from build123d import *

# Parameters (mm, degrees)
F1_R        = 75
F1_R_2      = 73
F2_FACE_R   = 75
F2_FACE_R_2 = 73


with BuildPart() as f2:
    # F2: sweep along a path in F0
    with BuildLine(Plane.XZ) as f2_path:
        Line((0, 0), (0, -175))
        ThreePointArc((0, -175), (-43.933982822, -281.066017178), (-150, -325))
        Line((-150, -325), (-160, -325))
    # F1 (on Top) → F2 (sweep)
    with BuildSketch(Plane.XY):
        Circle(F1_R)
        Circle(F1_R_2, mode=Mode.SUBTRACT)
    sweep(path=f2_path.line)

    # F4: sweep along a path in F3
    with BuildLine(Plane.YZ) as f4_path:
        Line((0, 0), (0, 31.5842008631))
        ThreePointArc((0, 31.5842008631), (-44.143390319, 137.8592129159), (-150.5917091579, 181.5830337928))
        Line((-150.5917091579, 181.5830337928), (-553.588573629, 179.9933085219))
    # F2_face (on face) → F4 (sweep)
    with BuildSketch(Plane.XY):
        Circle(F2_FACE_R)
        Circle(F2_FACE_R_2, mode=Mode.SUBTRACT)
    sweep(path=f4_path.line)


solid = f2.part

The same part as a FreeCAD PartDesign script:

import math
import FreeCAD as App
import Part
import Sketcher
from FreeCAD import Vector
Q = App.Units.Quantity

doc = App.newDocument("Part")
body = doc.addObject("PartDesign::Body", "Body")

# Sketch on XY plane
sketch1 = body.newObject("Sketcher::SketchObject", "Sketch")
sketch1.AttachmentSupport = (doc.getObject("XY_Plane"), [""])
sketch1.MapMode = "FlatFace"
sketch1.addGeometry([
    Part.Circle(Vector(0, 0, 0), Vector(0, 0, 1), 75),
    Part.Circle(Vector(0, 0, 0), Vector(0, 0, 1), 73),
], False)
sketch1.addConstraint([
    Sketcher.Constraint("Coincident", 0, 3, -1, 1),
    Sketcher.Constraint("Coincident", 1, 3, -1, 1),
    Sketcher.Constraint("Diameter", 0, Q("150 mm")),
    Sketcher.Constraint("Diameter", 1, Q("146 mm")),
])

# Sketch on XZ plane
sketch2 = body.newObject("Sketcher::SketchObject", "Sketch001")
sketch2.AttachmentSupport = (doc.getObject("XZ_Plane"), [""])
sketch2.MapMode = "FlatFace"
sketch2.addGeometry([
    Part.LineSegment(Vector(0, 0, 0), Vector(0, -175, 0)),
    Part.ArcOfCircle(Part.Circle(Vector(-150, -175, 0), Vector(0, 0, 1), 150), math.radians(-90), math.radians(0)),
    Part.LineSegment(Vector(-150, -325, 0), Vector(-160, -325, 0)),
], False)
sketch2.addConstraint([
    Sketcher.Constraint("Tangent", 0, 2, 1, 2),
    Sketcher.Constraint("Tangent", 1, 1, 2, 1),
    Sketcher.Constraint("Vertical", 0),
    Sketcher.Constraint("Horizontal", 2),
    Sketcher.Constraint("Coincident", 0, 1, -1, 1),
    Sketcher.Constraint("Radius", 1, Q("150 mm")),
    Sketcher.Constraint("DistanceX", 2, 2, 2, 1, Q("10 mm")),
    Sketcher.Constraint("DistanceY", 0, 2, 0, 1, Q("175 mm")),
])
doc.recompute()

additivepipe = body.newObject("PartDesign::AdditivePipe", "AdditivePipe")
additivepipe.Profile = sketch1
additivepipe.Spine = (sketch2, ["Edge1", "Edge2", "Edge3"])

# Sketch on XY plane
sketch3 = body.newObject("Sketcher::SketchObject", "Sketch002")
sketch3.AttachmentSupport = (doc.getObject("XY_Plane"), [""])
sketch3.MapMode = "FlatFace"
sketch3.addGeometry([
    Part.Circle(Vector(0, 0, 0), Vector(0, 0, 1), 75),
    Part.Circle(Vector(0, 0, 0), Vector(0, 0, 1), 73),
], False)
sketch3.addConstraint([
    Sketcher.Constraint("Coincident", 0, 3, -1, 1),
    Sketcher.Constraint("Coincident", 1, 3, -1, 1),
    Sketcher.Constraint("Diameter", 0, Q("150 mm")),
    Sketcher.Constraint("Diameter", 1, Q("146 mm")),
])

# Sketch on YZ plane
sketch4 = body.newObject("Sketcher::SketchObject", "Sketch003")
sketch4.AttachmentSupport = (doc.getObject("YZ_Plane"), [""])
sketch4.MapMode = "FlatFace"
sketch4.addGeometry([
    Part.LineSegment(Vector(0, 0, 0), Vector(0, 32, 0)),
    Part.ArcOfCircle(Part.Circle(Vector(-150, 32, 0), Vector(0, 0, 1), 150), math.radians(0), math.radians(90)),
    Part.LineSegment(Vector(-151, 182, 0), Vector(-554, 180, 0)),
], False)
sketch4.addConstraint([
    Sketcher.Constraint("Tangent", 0, 2, 1, 1),
    Sketcher.Constraint("Tangent", 1, 2, 2, 1),
    Sketcher.Constraint("Vertical", 0),
    Sketcher.Constraint("Coincident", 0, 1, -1, 1),
    Sketcher.Constraint("Radius", 1, Q("150 mm")),
    Sketcher.Constraint("Distance", 2, Q("403 mm")),
    Sketcher.Constraint("DistanceY", 0, 1, 0, 2, Q("31.584201 mm")),
    Sketcher.Constraint("DistanceX", 1, 2, -1, 1, Q("150.591709 mm")),
])
doc.recompute()

additivepipe2 = body.newObject("PartDesign::AdditivePipe", "AdditivePipe001")
additivepipe2.Profile = sketch3
additivepipe2.Spine = (sketch4, ["Edge1", "Edge2", "Edge3"])

doc.recompute()
